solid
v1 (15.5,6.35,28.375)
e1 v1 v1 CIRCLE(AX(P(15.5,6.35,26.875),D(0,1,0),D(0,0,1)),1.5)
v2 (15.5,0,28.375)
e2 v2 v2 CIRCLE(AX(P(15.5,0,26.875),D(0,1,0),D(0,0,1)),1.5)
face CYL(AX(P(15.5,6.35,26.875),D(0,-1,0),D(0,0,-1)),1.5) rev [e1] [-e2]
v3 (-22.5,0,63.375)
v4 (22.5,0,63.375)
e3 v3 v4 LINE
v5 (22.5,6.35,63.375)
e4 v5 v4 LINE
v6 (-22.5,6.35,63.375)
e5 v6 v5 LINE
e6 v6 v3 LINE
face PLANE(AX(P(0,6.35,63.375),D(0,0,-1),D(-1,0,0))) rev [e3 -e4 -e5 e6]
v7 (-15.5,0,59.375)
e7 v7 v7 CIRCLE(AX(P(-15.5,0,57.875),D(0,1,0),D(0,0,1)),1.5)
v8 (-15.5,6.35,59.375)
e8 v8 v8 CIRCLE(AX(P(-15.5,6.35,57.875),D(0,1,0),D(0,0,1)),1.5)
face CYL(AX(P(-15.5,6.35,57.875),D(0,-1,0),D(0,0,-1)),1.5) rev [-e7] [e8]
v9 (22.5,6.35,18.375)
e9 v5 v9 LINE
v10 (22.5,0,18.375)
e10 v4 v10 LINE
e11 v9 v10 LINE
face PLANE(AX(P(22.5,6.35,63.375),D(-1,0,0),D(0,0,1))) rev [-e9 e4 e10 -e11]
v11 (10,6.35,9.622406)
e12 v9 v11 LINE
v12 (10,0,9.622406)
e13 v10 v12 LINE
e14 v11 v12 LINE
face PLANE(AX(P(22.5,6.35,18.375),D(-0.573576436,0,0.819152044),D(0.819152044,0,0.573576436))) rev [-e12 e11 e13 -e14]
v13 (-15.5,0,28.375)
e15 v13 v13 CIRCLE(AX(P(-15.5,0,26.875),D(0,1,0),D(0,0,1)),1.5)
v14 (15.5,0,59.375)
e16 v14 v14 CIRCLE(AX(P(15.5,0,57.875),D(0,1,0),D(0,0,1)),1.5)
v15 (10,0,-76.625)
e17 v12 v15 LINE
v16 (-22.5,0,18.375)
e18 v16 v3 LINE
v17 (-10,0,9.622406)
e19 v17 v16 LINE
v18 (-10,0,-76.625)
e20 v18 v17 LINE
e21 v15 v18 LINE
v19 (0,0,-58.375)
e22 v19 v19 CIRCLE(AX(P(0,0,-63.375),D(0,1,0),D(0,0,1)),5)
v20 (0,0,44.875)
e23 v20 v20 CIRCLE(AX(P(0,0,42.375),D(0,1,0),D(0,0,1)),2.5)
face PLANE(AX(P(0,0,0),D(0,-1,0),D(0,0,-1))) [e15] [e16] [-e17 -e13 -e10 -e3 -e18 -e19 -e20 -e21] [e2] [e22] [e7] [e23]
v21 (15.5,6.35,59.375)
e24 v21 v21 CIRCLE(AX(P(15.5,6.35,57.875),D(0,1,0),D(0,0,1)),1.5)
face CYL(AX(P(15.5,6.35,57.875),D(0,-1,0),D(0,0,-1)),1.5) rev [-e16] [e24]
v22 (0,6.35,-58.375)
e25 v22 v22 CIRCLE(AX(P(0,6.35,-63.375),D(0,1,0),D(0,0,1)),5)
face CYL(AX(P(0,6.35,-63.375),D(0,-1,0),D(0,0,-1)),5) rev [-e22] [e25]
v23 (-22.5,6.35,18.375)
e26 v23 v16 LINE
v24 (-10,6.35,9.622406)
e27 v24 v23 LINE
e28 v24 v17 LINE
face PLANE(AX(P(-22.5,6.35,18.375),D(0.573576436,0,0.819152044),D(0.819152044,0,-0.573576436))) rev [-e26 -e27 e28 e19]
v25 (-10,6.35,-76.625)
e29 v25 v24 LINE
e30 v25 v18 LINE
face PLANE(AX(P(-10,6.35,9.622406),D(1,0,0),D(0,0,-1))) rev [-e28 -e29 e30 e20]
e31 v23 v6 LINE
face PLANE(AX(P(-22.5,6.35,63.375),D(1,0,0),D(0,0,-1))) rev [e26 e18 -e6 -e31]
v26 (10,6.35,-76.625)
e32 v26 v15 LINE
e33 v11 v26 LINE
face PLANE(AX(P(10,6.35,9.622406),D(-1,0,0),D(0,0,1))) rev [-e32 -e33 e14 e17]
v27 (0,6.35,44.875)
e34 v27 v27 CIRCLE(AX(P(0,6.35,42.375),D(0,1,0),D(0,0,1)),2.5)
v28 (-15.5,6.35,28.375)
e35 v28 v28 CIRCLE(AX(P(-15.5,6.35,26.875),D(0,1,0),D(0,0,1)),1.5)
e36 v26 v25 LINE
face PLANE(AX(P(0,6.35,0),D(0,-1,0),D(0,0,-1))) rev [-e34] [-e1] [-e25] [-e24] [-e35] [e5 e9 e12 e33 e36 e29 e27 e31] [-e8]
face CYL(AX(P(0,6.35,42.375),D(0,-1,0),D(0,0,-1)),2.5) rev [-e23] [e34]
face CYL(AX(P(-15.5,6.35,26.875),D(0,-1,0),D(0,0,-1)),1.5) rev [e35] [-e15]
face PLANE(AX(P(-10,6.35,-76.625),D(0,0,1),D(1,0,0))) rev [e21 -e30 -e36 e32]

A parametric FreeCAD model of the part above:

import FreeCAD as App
import Part
import Sketcher
from FreeCAD import Vector
Q = App.Units.Quantity

doc = App.newDocument("Part")
body = doc.addObject("PartDesign::Body", "Body")

# Sketch on XZ plane
sketch1 = body.newObject("Sketcher::SketchObject", "Sketch")
sketch1.AttachmentSupport = (doc.getObject("XZ_Plane"), [""])
sketch1.MapMode = "FlatFace"
sketch1.addGeometry([
    Part.LineSegment(Vector(-10, -76.6, 0), Vector(-10, 9.6, 0)),  # 0
    Part.LineSegment(Vector(-10, 9.6, 0), Vector(-22.5, 18.4, 0)),  # 1
    Part.LineSegment(Vector(-22.5, 18.4, 0), Vector(-22.5, 63.4, 0)),  # 2
    Part.LineSegment(Vector(-22.5, 63.4, 0), Vector(22.5, 63.4, 0)),  # 3
    Part.LineSegment(Vector(22.5, 63.4, 0), Vector(22.5, 18.4, 0)),  # 4
    Part.LineSegment(Vector(22.5, 18.4, 0), Vector(10, 9.6, 0)),  # 5
    Part.LineSegment(Vector(10, 9.6, 0), Vector(10, -76.6, 0)),  # 6
    Part.LineSegment(Vector(10, -76.6, 0), Vector(-10, -76.6, 0)),  # 7
    Part.Circle(Vector(15.5, 57.9, 0), Vector(0, 0, 1), 1.5),  # 8
    Part.Circle(Vector(15.5, 26.9, 0), Vector(0, 0, 1), 1.5),  # 9
    Part.Circle(Vector(0, 42.4, 0), Vector(0, 0, 1), 2.5),  # 10
    Part.Circle(Vector(-15.5, 57.9, 0), Vector(0, 0, 1), 1.5),  # 11
    Part.Circle(Vector(-15.5, 26.9, 0), Vector(0, 0, 1), 1.5),  # 12
    Part.Circle(Vector(0, -63.4, 0), Vector(0, 0, 1), 5),  # 13
], False)
sketch1.addConstraint([
    Sketcher.Constraint("Coincident", 0, 2, 1, 1),
    Sketcher.Constraint("Coincident", 1, 2, 2, 1),
    Sketcher.Constraint("Coincident", 2, 2, 3, 1),
    Sketcher.Constraint("Coincident", 3, 2, 4, 1),
    Sketcher.Constraint("Coincident", 4, 2, 5, 1),
    Sketcher.Constraint("Coincident", 5, 2, 6, 1),
    Sketcher.Constraint("Coincident", 6, 2, 7, 1),
    Sketcher.Constraint("Coincident", 7, 2, 0, 1),
    Sketcher.Constraint("Vertical", 0),
    Sketcher.Constraint("Vertical", 2),
    Sketcher.Constraint("Horizontal", 3),
    Sketcher.Constraint("Vertical", 4),
    Sketcher.Constraint("Vertical", 6),
    Sketcher.Constraint("Horizontal", 7),
    Sketcher.Constraint("Equal", 8, 9),
    Sketcher.Constraint("Equal", 9, 11),
    Sketcher.Constraint("Equal", 11, 12),
    Sketcher.Constraint("Symmetric", 8, 3, 11, 3, -2),
    Sketcher.Constraint("Symmetric", 9, 3, 12, 3, -2),
    Sketcher.Constraint("Symmetric", 1, 2, 4, 2, -2),
    Sketcher.Constraint("Symmetric", 0, 2, 5, 2, -2),
    Sketcher.Constraint("PointOnObject", 10, 3, -2),
    Sketcher.Constraint("PointOnObject", 13, 3, -2),
    Sketcher.Constraint("Vertical", 8, 3, 9, 3),
    Sketcher.Constraint("Equal", 3, 2),
    Sketcher.Constraint("Diameter", 8, 3.0),
    Sketcher.Constraint("Diameter", 10, 5.0),
    Sketcher.Constraint("Diameter", 13, 10.0),
    Sketcher.Constraint("DistanceX", 3, 1, 3, 2, 45.0),
    Sketcher.Constraint("DistanceX", 7, 2, 7, 1, 20.0),
    Sketcher.Constraint("Angle", 1, Q("145 deg")),
    Sketcher.Constraint("DistanceY", 9, 3, 8, 3, 31.0),
    Sketcher.Constraint("DistanceX", 11, 3, 8, 3, 31.0),
    Sketcher.Constraint("DistanceY", 1, 2, 10, 3, 24.0),
    Sketcher.Constraint("DistanceY", 6, 2, 4, 2, 95.0),
    Sketcher.Constraint("DistanceY", 10, 3, 8, 3, 15.5),
    Sketcher.Constraint("DistanceY", 13, 3, 9, 3, 90.25),
    Sketcher.Constraint("DistanceY", -1, 1, 8, 3, 57.875),
])
pad1 = body.newObject("PartDesign::Pad", "Pad")
pad1.Profile = sketch1
pad1.Length = 6.35
pad1.Reversed = True

doc.recompute()
